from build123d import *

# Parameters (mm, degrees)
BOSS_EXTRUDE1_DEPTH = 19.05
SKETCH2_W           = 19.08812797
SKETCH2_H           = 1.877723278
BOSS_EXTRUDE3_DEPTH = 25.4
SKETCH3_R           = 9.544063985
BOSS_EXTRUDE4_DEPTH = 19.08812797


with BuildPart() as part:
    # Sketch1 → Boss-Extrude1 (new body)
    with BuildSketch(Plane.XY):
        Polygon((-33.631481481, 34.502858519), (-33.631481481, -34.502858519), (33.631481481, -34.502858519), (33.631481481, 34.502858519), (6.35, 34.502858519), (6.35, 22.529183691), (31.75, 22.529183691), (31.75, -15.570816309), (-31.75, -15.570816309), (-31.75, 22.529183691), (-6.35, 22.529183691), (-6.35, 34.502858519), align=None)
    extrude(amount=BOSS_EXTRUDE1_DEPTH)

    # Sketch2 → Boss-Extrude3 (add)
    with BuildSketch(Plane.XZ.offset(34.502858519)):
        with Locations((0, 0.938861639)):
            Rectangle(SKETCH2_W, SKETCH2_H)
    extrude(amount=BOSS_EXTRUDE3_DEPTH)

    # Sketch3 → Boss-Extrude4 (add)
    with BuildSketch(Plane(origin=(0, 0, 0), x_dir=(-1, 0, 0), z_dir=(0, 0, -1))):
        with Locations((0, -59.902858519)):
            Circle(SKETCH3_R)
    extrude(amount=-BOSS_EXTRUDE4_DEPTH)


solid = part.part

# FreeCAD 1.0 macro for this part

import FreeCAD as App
import Part
import Sketcher

V = App.Vector
Q = App.Units.Quantity

doc = App.newDocument("Part")
body = doc.addObject("PartDesign::Body", "Body")

sketch1 = doc.addObject("Sketcher::SketchObject", "Sketch")
body.addObject(sketch1)
sketch1.AttachmentSupport = (doc.XY_Plane, [""])
sketch1.MapMode = "FlatFace"
sketch1.addGeometry(Part.LineSegment(V(-33.631481, 34.502859, 0), V(-33.631481, -34.502859, 0)), False)
sketch1.addGeometry(Part.LineSegment(V(-33.631481, -34.502859, 0), V(33.631481, -34.502859, 0)), False)
sketch1.addGeometry(Part.LineSegment(V(33.631481, -34.502859, 0), V(33.631481, 34.502859, 0)), False)
sketch1.addGeometry(Part.LineSegment(V(33.631481, 34.502859, 0), V(6.35, 34.502859, 0)), False)
sketch1.addGeometry(Part.LineSegment(V(6.35, 34.502859, 0), V(6.35, 22.529184, 0)), False)
sketch1.addGeometry(Part.LineSegment(V(6.35, 22.529184, 0), V(31.75, 22.529184, 0)), False)
sketch1.addGeometry(Part.LineSegment(V(31.75, 22.529184, 0), V(31.75, -15.570816, 0)), False)
sketch1.addGeometry(Part.LineSegment(V(31.75, -15.570816, 0), V(-31.75, -15.570816, 0)), False)
sketch1.addGeometry(Part.LineSegment(V(-31.75, -15.570816, 0), V(-31.75, 22.529184, 0)), False)
sketch1.addGeometry(Part.LineSegment(V(-31.75, 22.529184, 0), V(-6.35, 22.529184, 0)), False)
sketch1.addGeometry(Part.LineSegment(V(-6.35, 22.529184, 0), V(-6.35, 34.502859, 0)), False)
sketch1.addGeometry(Part.LineSegment(V(-6.35, 34.502859, 0), V(-33.631481, 34.502859, 0)), False)
sketch1.addConstraint(Sketcher.Constraint("Coincident", 0, 2, 1, 1))
sketch1.addConstraint(Sketcher.Constraint("Coincident", 1, 2, 2, 1))
sketch1.addConstraint(Sketcher.Constraint("Coincident", 2, 2, 3, 1))
sketch1.addConstraint(Sketcher.Constraint("Coincident", 3, 2, 4, 1))
sketch1.addConstraint(Sketcher.Constraint("Coincident", 4, 2, 5, 1))
sketch1.addConstraint(Sketcher.Constraint("Coincident", 5, 2, 6, 1))
sketch1.addConstraint(Sketcher.Constraint("Coincident", 6, 2, 7, 1))
sketch1.addConstraint(Sketcher.Constraint("Coincident", 7, 2, 8, 1))
sketch1.addConstraint(Sketcher.Constraint("Coincident", 8, 2, 9, 1))
sketch1.addConstraint(Sketcher.Constraint("Coincident", 9, 2, 10, 1))
sketch1.addConstraint(Sketcher.Constraint("Coincident", 10, 2, 11, 1))
sketch1.addConstraint(Sketcher.Constraint("Coincident", 11, 2, 0, 1))
sketch1.addConstraint(Sketcher.Constraint("Vertical", 0))
sketch1.addConstraint(Sketcher.Constraint("Horizontal", 1))
sketch1.addConstraint(Sketcher.Constraint("Vertical", 2))
sketch1.addConstraint(Sketcher.Constraint("Horizontal", 3))
sketch1.addConstraint(Sketcher.Constraint("Vertical", 4))
sketch1.addConstraint(Sketcher.Constraint("Horizontal", 5))
sketch1.addConstraint(Sketcher.Constraint("Vertical", 6))
sketch1.addConstraint(Sketcher.Constraint("Horizontal", 7))
sketch1.addConstraint(Sketcher.Constraint("Vertical", 8))
sketch1.addConstraint(Sketcher.Constraint("Horizontal", 9))
sketch1.addConstraint(Sketcher.Constraint("Vertical", 10))
sketch1.addConstraint(Sketcher.Constraint("Horizontal", 11))
sketch1.addConstraint(Sketcher.Constraint("Symmetric", 0, 2, 2, 2, -1, 1))
sketch1.addConstraint(Sketcher.Constraint("Symmetric", 5, 2, 8, 2, -2))
sketch1.addConstraint(Sketcher.Constraint("Symmetric", 3, 2, 10, 2, -2))
sketch1.addConstraint(Sketcher.Constraint("DistanceX", 5, 1, 5, 2, Q("1 in")))
sketch1.addConstraint(Sketcher.Constraint("DistanceX", 7, 2, 7, 1, Q("2.5 in")))
sketch1.addConstraint(Sketcher.Constraint("DistanceY", 6, 2, 6, 1, Q("1.5 in")))
sketch1.addConstraint(Sketcher.Constraint("DistanceX", 3, 2, 3, 1, Q("27.281481 mm")))
sketch1.addConstraint(Sketcher.Constraint("DistanceY", 0, 2, 0, 1, Q("69.005717 mm")))
sketch1.addConstraint(Sketcher.Constraint("DistanceY", 4, 2, 4, 1, Q("11.973675 mm")))
pad1 = doc.addObject("PartDesign::Pad", "Pad")
body.addObject(pad1)
pad1.Profile = sketch1
pad1.Length = Q("0.75 in")

sketch2 = doc.addObject("Sketcher::SketchObject", "Sketch001")
body.addObject(sketch2)
sketch2.AttachmentSupport = (doc.XZ_Plane, [""])
sketch2.MapMode = "FlatFace"
sketch2.AttachmentOffset = App.Placement(V(0, 0, 34.502859), App.Rotation())
sketch2.addGeometry(Part.LineSegment(V(-9.544064, 1.877723, 0), V(-9.544064, 0, 0)), False)
sketch2.addGeometry(Part.LineSegment(V(-9.544064, 0, 0), V(9.544064, 0, 0)), False)
sketch2.addGeometry(Part.LineSegment(V(9.544064, 0, 0), V(9.544064, 1.877723, 0)), False)
sketch2.addGeometry(Part.LineSegment(V(9.544064, 1.877723, 0), V(-9.544064, 1.877723, 0)), False)
sketch2.addConstraint(Sketcher.Constraint("Coincident", 0, 2, 1, 1))
sketch2.addConstraint(Sketcher.Constraint("Coincident", 1, 2, 2, 1))
sketch2.addConstraint(Sketcher.Constraint("Coincident", 2, 2, 3, 1))
sketch2.addConstraint(Sketcher.Constraint("Coincident", 3, 2, 0, 1))
sketch2.addConstraint(Sketcher.Constraint("Vertical", 0))
sketch2.addConstraint(Sketcher.Constraint("Horizontal", 1))
sketch2.addConstraint(Sketcher.Constraint("Vertical", 2))
sketch2.addConstraint(Sketcher.Constraint("Horizontal", 3))
sketch2.addConstraint(Sketcher.Constraint("Symmetric", 0, 2, 1, 2, -1, 1))
sketch2.addConstraint(Sketcher.Constraint("DistanceX", 1, 1, 1, 2, Q("19.088128 mm")))
sketch2.addConstraint(Sketcher.Constraint("DistanceY", 0, 2, 0, 1, Q("1.877723 mm")))
pad2 = doc.addObject("PartDesign::Pad", "Pad001")
body.addObject(pad2)
pad2.Profile = sketch2
pad2.Length = Q("1 in")

sketch3 = doc.addObject("Sketcher::SketchObject", "Sketch002")
body.addObject(sketch3)
sketch3.AttachmentSupport = (doc.XY_Plane, [""])
sketch3.MapMode = "FlatFace"
sketch3.addGeometry(Part.Circle(V(0, -59.902859, 0), V(0, 0, 1), 9.544064), False)
sketch3.addConstraint(Sketcher.Constraint("PointOnObject", 0, 3, -2))
sketch3.addConstraint(Sketcher.Constraint("Diameter", 0, Q("19.088128 mm")))
sketch3.addConstraint(Sketcher.Constraint("DistanceY", 0, 3, -1, 1, Q("59.902859 mm")))
pad3 = doc.addObject("PartDesign::Pad", "Pad002")
body.addObject(pad3)
pad3.Profile = sketch3
pad3.Length = 19.088128

doc.recompute()
